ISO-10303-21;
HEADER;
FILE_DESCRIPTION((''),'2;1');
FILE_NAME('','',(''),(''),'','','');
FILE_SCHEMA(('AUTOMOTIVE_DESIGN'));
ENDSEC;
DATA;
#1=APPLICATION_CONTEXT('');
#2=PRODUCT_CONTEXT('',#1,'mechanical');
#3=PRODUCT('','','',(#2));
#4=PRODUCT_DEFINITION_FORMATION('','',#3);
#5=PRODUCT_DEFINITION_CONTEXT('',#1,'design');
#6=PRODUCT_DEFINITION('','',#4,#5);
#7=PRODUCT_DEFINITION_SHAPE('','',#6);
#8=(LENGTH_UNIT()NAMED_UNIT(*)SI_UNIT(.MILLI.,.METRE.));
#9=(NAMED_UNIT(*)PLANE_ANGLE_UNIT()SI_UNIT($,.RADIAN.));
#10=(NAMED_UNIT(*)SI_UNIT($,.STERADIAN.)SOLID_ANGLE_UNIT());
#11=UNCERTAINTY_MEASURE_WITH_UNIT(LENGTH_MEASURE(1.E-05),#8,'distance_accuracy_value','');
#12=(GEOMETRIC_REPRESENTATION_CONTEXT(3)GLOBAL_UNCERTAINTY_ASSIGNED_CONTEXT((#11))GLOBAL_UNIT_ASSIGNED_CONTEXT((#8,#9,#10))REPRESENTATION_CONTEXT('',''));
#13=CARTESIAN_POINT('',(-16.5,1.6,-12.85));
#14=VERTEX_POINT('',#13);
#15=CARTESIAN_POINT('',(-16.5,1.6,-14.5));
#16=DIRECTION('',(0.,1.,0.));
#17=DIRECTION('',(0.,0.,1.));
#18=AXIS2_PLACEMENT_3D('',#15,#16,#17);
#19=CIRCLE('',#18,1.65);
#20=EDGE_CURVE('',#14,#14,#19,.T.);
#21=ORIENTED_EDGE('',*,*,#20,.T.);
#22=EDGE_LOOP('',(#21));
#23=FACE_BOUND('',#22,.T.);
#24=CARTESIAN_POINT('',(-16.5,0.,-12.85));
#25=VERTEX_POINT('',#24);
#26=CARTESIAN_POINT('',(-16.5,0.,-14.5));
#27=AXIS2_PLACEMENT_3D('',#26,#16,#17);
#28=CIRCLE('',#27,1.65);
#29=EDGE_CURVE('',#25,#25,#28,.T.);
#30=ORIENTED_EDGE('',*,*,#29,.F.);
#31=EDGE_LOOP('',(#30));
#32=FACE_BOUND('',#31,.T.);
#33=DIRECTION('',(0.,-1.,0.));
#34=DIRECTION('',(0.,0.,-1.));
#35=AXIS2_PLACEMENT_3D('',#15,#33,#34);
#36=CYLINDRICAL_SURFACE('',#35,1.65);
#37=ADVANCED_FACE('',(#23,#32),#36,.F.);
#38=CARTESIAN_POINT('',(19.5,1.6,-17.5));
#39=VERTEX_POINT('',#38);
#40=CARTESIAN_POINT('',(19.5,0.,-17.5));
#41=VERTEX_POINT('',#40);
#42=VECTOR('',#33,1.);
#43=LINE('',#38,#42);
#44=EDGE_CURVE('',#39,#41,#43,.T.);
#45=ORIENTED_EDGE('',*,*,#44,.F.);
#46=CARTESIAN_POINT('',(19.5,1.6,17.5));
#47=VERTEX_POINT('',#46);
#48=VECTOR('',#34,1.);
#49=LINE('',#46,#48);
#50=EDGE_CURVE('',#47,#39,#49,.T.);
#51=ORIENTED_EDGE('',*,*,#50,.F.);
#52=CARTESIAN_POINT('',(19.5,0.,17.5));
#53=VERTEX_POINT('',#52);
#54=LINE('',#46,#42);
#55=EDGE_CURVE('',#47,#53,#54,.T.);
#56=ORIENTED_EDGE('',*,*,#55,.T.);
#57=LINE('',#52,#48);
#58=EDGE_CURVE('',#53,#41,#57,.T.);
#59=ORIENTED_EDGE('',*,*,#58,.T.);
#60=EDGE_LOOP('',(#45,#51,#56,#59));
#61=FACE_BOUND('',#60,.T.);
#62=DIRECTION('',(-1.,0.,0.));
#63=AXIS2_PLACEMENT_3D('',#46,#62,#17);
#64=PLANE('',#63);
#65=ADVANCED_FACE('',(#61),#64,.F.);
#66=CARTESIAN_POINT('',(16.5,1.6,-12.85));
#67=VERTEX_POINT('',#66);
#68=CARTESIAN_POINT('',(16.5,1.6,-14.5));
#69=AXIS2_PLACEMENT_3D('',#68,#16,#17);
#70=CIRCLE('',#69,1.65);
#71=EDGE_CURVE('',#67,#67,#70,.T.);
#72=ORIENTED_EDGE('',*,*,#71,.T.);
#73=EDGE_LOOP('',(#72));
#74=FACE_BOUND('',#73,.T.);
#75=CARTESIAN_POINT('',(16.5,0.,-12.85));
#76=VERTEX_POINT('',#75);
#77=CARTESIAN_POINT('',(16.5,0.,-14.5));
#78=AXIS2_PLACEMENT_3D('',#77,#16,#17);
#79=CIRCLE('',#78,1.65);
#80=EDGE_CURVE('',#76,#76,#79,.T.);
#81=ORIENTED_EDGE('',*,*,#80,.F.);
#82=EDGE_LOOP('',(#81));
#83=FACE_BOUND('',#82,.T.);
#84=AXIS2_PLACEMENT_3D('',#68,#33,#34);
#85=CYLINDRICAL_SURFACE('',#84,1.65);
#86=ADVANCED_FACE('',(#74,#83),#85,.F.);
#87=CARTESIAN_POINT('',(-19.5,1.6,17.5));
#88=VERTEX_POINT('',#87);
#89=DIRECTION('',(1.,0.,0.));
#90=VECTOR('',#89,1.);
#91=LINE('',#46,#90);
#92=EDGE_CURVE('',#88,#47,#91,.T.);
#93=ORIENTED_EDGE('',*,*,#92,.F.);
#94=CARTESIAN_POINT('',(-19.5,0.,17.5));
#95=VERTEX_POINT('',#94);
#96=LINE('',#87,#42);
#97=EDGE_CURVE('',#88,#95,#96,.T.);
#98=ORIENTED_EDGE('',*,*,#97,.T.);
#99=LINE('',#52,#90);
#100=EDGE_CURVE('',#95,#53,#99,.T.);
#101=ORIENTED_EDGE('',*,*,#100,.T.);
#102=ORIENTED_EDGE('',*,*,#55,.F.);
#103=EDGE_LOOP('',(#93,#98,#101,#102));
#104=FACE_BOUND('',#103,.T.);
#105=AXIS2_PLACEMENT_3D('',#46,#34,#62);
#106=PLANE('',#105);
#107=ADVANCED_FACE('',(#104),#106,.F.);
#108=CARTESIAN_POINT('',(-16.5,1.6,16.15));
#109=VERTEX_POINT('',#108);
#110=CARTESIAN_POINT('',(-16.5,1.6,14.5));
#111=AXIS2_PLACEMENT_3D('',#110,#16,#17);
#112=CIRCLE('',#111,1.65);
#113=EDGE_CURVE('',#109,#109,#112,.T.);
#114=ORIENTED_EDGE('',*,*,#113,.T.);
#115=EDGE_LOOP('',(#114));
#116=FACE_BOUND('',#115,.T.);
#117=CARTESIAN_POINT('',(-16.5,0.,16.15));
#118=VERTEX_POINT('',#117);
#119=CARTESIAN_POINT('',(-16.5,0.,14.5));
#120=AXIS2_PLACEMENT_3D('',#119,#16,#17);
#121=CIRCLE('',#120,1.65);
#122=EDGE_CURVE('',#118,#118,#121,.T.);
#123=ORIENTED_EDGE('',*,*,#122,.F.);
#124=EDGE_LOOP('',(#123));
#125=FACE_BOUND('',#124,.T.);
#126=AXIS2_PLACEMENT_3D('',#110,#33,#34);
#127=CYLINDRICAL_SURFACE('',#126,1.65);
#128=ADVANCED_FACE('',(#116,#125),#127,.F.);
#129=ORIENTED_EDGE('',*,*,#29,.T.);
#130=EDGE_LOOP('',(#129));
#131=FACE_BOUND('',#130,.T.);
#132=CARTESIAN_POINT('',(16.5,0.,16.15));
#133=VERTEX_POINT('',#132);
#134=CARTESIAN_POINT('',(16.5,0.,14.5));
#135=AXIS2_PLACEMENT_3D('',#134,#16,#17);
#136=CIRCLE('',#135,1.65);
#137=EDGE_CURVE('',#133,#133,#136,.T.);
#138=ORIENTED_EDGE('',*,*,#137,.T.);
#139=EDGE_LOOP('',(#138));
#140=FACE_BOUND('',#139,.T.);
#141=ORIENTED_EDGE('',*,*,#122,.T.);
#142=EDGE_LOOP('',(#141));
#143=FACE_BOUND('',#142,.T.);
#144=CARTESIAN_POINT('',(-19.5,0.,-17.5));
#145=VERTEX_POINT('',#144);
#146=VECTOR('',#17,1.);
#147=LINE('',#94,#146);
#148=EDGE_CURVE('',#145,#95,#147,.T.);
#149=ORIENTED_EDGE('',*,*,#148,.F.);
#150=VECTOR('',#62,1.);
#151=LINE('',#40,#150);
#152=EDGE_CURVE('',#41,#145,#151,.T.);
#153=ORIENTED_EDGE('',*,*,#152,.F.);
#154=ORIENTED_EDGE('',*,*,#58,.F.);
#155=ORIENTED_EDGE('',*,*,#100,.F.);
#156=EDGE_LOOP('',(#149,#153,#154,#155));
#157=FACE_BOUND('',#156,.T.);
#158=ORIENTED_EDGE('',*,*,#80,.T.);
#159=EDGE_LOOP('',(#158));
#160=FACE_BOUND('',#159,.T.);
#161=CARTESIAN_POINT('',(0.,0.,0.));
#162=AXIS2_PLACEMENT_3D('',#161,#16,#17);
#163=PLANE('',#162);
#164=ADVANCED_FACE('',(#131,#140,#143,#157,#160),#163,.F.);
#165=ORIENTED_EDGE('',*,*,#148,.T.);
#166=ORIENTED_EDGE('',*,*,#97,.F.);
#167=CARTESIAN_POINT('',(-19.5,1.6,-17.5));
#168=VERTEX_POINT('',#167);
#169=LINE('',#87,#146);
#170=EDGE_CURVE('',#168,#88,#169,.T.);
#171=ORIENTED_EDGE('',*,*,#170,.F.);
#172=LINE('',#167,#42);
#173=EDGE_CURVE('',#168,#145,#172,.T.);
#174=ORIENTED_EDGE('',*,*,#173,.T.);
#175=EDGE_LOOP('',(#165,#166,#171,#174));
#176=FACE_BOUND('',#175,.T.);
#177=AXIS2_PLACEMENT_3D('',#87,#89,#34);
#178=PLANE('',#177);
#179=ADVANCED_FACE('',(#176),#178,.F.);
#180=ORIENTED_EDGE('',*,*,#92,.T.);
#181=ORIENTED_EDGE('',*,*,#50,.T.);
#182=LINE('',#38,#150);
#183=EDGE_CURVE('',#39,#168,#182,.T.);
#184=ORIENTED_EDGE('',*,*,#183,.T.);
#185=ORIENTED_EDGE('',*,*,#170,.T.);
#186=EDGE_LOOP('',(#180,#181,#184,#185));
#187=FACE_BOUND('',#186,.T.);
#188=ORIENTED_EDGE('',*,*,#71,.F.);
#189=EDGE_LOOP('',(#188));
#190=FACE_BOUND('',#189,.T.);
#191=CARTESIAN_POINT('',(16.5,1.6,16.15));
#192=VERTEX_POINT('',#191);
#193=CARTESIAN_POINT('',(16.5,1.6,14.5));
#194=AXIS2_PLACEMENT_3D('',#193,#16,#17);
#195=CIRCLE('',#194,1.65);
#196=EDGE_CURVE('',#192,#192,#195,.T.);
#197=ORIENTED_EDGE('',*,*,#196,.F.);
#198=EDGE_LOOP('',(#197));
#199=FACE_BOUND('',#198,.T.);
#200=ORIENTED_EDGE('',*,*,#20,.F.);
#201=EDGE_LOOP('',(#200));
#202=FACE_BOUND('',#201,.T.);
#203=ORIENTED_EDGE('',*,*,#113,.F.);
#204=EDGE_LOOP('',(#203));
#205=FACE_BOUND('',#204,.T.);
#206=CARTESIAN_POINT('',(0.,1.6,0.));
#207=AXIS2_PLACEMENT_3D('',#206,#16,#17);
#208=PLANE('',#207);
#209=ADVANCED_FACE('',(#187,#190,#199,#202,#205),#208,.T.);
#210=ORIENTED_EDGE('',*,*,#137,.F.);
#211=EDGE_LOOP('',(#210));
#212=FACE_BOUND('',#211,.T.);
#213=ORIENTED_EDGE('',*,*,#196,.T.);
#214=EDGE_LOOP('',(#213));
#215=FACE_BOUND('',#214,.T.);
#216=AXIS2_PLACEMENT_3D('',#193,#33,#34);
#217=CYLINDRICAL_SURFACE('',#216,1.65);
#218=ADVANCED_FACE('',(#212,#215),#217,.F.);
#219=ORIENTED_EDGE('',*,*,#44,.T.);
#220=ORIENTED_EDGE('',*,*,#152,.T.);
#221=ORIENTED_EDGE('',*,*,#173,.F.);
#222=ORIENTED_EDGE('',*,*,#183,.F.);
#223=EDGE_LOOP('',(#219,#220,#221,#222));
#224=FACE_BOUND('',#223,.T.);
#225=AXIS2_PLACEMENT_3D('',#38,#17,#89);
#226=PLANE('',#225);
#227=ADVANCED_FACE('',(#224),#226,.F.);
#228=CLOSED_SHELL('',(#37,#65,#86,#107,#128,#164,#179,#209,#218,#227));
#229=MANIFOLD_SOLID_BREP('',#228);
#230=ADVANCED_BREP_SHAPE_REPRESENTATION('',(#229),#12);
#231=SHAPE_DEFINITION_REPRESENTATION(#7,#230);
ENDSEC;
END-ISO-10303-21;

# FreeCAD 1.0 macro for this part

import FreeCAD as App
import Part
import Sketcher


def add_polygon(sketch, points):
    """Adds a closed chain of lines whose ends are joined by coincident constraints."""
    first, n = sketch.GeometryCount, len(points)
    for a, b in zip(points, points[1:] + points[:1]):
        sketch.addGeometry(Part.LineSegment(App.Vector(*a, 0), App.Vector(*b, 0)), False)
    for i in range(n):
        sketch.addConstraint(Sketcher.Constraint("Coincident", first + i, 2, first + (i + 1) % n, 1))

doc = App.newDocument("Part")
body = doc.addObject("PartDesign::Body", "Body")

# Sketch on XZ plane
sketch1 = body.newObject("Sketcher::SketchObject", "Sketch")
sketch1.AttachmentSupport = (doc.getObject("XZ_Plane"), [""])
sketch1.MapMode = "FlatFace"
add_polygon(sketch1, [(-19.5, -17.5), (-19.5, 17.5), (19.5, 17.5), (19.5, -17.5)])  # lines 0-3
sketch1.addGeometry(Part.Circle(App.Vector(-16.5, 14.5, 0), App.Vector(0, 0, 1), 1.65), False)  # 4
sketch1.addGeometry(Part.Circle(App.Vector(16.5, 14.5, 0), App.Vector(0, 0, 1), 1.65), False)  # 5
sketch1.addGeometry(Part.Circle(App.Vector(-16.5, -14.5, 0), App.Vector(0, 0, 1), 1.65), False)  # 6
sketch1.addGeometry(Part.Circle(App.Vector(16.5, -14.5, 0), App.Vector(0, 0, 1), 1.65), False)  # 7
sketch1.addConstraint(Sketcher.Constraint("Vertical", 0))
sketch1.addConstraint(Sketcher.Constraint("Horizontal", 1))
sketch1.addConstraint(Sketcher.Constraint("Vertical", 2))
sketch1.addConstraint(Sketcher.Constraint("Horizontal", 3))
sketch1.addConstraint(Sketcher.Constraint("Equal", 4, 5))
sketch1.addConstraint(Sketcher.Constraint("Equal", 5, 6))
sketch1.addConstraint(Sketcher.Constraint("Equal", 6, 7))
sketch1.addConstraint(Sketcher.Constraint("Symmetric", 5, 3, 6, 3, -1, 1))
sketch1.addConstraint(Sketcher.Constraint("Symmetric", 4, 3, 7, 3, -1, 1))
sketch1.addConstraint(Sketcher.Constraint("Symmetric", 0, 2, 2, 2, -1, 1))
sketch1.addConstraint(Sketcher.Constraint("Symmetric", 4, 3, 5, 3, -2))
sketch1.addConstraint(Sketcher.Constraint("Diameter", 4, 3.3))
sketch1.addConstraint(Sketcher.Constraint("DistanceX", 1, 1, 1, 2, 39.0))
sketch1.addConstraint(Sketcher.Constraint("DistanceY", 0, 1, 0, 2, 35.0))
sketch1.addConstraint(Sketcher.Constraint("DistanceX", 4, 3, 5, 3, 33.0))
sketch1.addConstraint(Sketcher.Constraint("DistanceY", 6, 3, 4, 3, 29.0))
pad1 = body.newObject("PartDesign::Pad", "Pad")
pad1.Profile = sketch1
pad1.Length = 1.6
pad1.Reversed = True

doc.recompute()
